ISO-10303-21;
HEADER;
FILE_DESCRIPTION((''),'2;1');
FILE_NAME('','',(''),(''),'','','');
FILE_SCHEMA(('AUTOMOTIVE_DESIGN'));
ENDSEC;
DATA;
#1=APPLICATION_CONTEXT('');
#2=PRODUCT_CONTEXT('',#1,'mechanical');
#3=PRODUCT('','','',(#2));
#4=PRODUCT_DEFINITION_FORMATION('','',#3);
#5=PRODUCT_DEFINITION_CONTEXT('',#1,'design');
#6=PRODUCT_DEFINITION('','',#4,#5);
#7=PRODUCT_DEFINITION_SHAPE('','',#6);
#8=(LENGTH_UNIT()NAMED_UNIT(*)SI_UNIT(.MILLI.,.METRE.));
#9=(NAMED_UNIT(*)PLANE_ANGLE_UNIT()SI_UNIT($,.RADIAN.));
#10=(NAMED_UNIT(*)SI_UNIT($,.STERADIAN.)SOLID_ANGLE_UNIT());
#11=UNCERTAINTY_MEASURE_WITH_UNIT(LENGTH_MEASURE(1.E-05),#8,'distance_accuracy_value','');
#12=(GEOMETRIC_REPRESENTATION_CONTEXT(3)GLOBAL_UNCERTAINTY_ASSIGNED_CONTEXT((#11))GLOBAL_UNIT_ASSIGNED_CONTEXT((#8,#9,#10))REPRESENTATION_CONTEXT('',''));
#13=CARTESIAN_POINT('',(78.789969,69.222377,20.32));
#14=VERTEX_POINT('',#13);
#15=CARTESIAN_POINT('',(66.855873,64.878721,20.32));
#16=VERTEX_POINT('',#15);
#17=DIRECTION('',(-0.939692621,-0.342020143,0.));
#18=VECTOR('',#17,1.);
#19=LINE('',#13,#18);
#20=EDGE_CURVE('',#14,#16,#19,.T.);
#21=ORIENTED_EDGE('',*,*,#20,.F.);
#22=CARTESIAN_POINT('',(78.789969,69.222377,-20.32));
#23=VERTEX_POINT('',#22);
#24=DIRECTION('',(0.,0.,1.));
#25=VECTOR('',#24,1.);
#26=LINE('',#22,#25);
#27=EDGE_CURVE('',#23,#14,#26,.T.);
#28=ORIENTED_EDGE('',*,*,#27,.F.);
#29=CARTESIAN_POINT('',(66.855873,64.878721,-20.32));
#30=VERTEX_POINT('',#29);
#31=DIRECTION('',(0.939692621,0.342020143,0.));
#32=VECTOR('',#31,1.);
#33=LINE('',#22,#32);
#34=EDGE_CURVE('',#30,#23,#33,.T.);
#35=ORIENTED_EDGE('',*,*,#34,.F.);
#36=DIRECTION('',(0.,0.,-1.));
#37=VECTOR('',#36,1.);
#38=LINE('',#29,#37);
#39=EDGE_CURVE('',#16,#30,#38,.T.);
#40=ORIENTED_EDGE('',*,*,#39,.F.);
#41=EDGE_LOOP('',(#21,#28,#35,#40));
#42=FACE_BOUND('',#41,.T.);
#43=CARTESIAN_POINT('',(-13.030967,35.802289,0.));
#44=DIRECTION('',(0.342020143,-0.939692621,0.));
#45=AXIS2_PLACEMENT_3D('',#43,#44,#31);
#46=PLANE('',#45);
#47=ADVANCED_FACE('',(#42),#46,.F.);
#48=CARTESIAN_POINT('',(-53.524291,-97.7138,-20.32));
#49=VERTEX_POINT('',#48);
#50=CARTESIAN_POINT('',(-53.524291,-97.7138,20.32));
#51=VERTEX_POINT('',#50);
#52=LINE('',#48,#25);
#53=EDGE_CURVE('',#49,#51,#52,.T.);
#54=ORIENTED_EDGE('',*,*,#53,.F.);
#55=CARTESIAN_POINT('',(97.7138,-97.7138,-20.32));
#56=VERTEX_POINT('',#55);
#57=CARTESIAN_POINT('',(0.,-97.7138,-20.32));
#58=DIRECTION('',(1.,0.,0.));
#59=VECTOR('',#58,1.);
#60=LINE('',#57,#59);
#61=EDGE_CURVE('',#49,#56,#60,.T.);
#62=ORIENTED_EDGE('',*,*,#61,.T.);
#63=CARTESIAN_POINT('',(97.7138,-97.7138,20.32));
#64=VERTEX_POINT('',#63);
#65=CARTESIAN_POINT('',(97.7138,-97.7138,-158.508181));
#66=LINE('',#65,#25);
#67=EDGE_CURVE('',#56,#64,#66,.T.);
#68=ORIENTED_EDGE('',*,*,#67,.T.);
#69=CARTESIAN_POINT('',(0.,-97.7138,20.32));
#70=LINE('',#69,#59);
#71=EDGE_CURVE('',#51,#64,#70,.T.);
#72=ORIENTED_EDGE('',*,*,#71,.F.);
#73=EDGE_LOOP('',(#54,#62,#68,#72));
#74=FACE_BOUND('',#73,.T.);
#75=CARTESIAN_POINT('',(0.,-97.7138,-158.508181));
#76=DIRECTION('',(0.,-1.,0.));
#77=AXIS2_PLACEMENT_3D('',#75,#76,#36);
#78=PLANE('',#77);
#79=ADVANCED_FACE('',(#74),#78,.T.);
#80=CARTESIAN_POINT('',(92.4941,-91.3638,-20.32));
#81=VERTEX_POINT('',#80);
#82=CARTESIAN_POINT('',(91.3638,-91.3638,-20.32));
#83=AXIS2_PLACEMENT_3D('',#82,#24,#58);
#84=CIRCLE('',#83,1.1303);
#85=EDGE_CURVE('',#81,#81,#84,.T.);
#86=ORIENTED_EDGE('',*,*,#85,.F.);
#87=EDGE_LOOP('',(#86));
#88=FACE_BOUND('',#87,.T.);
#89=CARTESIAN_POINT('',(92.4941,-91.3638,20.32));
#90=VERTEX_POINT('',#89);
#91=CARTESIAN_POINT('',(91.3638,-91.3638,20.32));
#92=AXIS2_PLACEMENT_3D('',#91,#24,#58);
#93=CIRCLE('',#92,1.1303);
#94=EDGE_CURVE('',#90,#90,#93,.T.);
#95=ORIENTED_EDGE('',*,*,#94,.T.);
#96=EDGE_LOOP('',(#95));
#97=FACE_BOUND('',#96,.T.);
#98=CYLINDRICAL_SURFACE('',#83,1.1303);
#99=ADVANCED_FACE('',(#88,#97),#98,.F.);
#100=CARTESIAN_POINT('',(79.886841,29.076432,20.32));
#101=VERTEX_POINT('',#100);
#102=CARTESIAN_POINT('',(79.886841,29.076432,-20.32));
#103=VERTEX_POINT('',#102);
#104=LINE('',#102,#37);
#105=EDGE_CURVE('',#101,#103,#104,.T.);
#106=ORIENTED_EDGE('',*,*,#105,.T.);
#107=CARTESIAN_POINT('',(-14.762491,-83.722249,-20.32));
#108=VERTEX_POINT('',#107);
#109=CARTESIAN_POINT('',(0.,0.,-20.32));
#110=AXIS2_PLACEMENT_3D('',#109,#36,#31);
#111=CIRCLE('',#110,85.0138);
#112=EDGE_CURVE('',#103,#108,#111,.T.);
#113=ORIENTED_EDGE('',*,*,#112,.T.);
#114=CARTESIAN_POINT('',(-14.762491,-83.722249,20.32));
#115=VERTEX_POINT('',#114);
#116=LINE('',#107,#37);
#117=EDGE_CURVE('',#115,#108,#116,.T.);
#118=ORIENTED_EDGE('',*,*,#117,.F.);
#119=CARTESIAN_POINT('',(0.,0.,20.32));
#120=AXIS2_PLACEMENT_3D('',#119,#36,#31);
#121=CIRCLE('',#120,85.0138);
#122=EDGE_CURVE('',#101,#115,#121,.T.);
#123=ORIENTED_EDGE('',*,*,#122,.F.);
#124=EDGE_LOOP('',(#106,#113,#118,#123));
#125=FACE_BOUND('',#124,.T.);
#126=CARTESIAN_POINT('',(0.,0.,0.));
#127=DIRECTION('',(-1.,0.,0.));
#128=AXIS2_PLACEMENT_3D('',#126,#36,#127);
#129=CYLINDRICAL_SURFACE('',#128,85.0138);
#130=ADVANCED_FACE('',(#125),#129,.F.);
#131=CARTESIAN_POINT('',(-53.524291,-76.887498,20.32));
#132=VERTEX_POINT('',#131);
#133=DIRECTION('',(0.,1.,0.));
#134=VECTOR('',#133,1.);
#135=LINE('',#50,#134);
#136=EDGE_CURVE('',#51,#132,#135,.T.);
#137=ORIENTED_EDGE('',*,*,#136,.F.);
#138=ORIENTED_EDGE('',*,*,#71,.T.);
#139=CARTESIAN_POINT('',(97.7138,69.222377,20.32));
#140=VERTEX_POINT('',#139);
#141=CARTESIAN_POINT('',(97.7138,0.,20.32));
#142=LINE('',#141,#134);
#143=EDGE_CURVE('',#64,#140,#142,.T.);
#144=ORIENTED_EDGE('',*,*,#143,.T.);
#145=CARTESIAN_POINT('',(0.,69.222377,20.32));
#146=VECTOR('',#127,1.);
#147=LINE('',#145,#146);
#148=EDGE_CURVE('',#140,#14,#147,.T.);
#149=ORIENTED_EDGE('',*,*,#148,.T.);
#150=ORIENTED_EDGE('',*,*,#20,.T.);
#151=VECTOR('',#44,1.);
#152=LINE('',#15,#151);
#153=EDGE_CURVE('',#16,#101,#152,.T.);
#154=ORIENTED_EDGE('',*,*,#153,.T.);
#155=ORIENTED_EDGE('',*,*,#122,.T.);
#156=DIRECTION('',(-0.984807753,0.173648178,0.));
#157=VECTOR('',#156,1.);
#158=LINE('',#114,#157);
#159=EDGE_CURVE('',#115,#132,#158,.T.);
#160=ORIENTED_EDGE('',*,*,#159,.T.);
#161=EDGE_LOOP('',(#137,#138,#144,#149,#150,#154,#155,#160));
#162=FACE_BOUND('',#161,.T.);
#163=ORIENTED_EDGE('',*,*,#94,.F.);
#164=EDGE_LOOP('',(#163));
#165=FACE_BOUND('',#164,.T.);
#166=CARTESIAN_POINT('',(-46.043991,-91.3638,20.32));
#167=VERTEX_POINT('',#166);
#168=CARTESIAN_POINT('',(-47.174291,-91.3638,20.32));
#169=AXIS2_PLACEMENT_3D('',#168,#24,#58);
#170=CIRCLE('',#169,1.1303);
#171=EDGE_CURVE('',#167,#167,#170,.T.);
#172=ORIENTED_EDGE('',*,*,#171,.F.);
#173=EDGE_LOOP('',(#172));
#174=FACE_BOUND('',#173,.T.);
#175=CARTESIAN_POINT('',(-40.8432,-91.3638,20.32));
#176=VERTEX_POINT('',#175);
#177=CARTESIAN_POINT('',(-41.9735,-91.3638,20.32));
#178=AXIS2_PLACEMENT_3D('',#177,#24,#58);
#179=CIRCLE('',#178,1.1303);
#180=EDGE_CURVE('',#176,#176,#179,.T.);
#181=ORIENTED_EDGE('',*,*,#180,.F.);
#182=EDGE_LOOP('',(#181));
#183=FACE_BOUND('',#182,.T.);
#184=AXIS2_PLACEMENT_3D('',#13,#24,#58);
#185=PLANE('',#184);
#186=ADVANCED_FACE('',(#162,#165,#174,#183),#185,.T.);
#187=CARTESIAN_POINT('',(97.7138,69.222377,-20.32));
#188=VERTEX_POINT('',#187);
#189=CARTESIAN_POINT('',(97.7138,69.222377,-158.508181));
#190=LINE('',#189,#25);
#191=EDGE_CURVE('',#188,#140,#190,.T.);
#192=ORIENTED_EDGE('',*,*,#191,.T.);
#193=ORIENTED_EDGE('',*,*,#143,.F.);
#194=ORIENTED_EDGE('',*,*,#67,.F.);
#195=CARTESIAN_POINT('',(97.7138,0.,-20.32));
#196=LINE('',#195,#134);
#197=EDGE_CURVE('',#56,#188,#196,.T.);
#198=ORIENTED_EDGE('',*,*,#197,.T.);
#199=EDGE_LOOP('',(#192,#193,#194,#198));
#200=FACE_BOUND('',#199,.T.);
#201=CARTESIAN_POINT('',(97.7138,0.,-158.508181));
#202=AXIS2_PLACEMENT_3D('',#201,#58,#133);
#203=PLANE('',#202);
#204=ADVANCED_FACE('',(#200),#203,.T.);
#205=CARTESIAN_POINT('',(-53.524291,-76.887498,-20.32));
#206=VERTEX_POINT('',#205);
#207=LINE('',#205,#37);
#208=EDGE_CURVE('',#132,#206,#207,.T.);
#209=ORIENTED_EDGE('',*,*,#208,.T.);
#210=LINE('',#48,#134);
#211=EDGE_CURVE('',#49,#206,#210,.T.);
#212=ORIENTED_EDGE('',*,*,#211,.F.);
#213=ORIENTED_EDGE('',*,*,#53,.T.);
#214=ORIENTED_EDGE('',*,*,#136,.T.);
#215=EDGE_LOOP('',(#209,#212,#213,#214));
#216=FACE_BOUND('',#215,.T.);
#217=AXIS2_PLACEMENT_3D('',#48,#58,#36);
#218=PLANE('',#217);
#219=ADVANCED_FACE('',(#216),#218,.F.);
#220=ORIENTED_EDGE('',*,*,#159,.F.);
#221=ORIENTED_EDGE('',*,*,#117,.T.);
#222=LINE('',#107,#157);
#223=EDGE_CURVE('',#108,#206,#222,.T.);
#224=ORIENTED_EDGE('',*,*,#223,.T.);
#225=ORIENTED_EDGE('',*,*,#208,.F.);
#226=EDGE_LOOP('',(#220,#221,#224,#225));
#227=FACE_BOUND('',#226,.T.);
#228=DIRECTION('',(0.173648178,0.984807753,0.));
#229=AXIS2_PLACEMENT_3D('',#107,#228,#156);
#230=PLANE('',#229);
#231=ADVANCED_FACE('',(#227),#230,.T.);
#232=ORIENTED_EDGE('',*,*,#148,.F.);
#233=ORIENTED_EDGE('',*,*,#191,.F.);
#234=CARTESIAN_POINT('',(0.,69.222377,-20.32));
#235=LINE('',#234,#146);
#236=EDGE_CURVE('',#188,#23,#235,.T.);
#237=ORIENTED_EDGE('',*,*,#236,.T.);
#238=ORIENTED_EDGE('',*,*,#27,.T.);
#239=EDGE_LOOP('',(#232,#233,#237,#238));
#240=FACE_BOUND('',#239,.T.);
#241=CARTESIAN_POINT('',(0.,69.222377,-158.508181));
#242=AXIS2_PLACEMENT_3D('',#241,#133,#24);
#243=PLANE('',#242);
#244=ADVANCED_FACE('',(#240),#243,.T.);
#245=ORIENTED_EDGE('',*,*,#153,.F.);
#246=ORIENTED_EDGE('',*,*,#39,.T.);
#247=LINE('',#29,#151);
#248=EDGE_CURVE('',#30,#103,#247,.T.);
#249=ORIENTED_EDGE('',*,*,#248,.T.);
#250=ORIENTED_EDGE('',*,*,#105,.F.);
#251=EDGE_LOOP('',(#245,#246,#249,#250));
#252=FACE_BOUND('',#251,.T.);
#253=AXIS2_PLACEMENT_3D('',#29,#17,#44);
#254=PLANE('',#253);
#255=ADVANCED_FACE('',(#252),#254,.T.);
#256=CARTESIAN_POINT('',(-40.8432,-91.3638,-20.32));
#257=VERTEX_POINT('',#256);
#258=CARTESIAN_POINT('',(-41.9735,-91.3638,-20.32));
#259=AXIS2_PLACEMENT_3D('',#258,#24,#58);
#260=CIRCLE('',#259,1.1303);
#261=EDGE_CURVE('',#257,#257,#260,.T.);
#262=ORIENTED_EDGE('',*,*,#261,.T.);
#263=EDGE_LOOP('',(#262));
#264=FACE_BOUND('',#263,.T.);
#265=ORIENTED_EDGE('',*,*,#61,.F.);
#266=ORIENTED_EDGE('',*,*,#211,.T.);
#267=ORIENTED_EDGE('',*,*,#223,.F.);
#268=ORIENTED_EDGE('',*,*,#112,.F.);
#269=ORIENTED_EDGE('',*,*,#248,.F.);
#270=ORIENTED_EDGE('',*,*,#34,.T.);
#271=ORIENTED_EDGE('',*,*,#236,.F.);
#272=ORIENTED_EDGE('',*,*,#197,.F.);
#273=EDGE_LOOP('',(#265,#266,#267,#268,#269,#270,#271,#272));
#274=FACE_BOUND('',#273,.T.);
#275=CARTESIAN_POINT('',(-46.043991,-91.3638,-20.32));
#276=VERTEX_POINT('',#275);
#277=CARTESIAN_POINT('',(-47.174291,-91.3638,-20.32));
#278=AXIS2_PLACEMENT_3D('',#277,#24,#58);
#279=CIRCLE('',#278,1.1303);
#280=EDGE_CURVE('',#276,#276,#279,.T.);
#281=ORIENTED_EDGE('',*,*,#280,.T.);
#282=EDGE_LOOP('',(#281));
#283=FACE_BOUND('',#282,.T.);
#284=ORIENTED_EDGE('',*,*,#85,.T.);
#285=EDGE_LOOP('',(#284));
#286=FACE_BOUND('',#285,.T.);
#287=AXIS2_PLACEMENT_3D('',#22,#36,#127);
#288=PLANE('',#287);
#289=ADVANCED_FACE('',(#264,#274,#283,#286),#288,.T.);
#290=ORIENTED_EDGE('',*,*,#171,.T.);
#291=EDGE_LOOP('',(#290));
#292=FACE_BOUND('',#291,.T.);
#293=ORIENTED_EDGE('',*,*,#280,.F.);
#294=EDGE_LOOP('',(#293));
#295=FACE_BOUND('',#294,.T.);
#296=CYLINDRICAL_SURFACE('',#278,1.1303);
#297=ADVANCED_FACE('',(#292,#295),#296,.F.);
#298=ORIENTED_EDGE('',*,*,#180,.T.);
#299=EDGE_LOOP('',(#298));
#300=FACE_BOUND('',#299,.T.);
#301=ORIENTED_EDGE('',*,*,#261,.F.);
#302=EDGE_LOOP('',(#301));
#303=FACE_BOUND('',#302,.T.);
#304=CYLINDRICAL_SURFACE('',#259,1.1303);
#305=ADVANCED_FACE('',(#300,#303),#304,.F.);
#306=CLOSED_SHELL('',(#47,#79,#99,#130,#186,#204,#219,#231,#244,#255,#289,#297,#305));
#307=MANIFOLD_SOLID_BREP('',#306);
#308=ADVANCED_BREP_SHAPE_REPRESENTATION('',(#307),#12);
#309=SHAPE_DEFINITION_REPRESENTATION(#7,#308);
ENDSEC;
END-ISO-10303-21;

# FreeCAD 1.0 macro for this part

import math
import FreeCAD as App
import Part
import Sketcher
from FreeCAD import Vector
Q = App.Units.Quantity


def add_polygon(sketch, points):
    """Adds a closed chain of lines whose ends are joined by coincident constraints."""
    first, n = sketch.GeometryCount, len(points)
    for a, b in zip(points, points[1:] + points[:1]):
        sketch.addGeometry(Part.LineSegment(App.Vector(*a, 0), App.Vector(*b, 0)), False)
    for i in range(n):
        sketch.addConstraint(Sketcher.Constraint("Coincident", first + i, 2, first + (i + 1) % n, 1))

doc = App.newDocument("Part")
body = doc.addObject("PartDesign::Body", "Body")

sketch1 = body.newObject("Sketcher::SketchObject", "Sketch")
sketch1.Placement = App.Placement(Vector(-117.024291, -78.586653, -20.32), App.Rotation(Vector(0.051794909, 0.293743526, 0.954479978), Vector(-0.165743709, -0.939979282, 0.298274993), Vector(0.984807753, -0.173648178, 0), "ZXY"))
add_polygon(sketch1, [(0, 0), (4, -12), (43, 0), (39, 12)])
sketch1.addConstraint(Sketcher.Constraint("Coincident", 3, 2, -1, 1))
sketch1.addConstraint(Sketcher.Constraint("PointOnObject", 1, 2, -1))
sketch1.addConstraint(Sketcher.Constraint("Perpendicular", 0, 1))
sketch1.addConstraint(Sketcher.Constraint("Perpendicular", 1, 2))
sketch1.addConstraint(Sketcher.Constraint("Perpendicular", 2, 3))
sketch1.addConstraint(Sketcher.Constraint("Distance", 0, Q("0.5 in")))
sketch1.addConstraint(Sketcher.Constraint("Distance", 1, Q("1.6 in")))

sketch2 = body.newObject("Sketcher::SketchObject", "Sketch001")
sketch2.AttachmentSupport = (doc.getObject("XY_Plane"), [""])
sketch2.MapMode = "FlatFace"
sketch2.addGeometry(Part.LineSegment(Vector(-111, -47, 0), Vector(-11, -64, 0)), False)
sketch2.addGeometry(Part.ArcOfCircle(Part.Circle(Vector(0, 0, 0), Vector(0, 0, 1), 65), math.radians(-100), math.radians(20)), False)
sketch2.addGeometry(Part.LineSegment(Vector(61, 22, 0), Vector(48, 58, 0)), False)
sketch2.addConstraint(Sketcher.Constraint("Tangent", 0, 2, 1, 1))
sketch2.addConstraint(Sketcher.Constraint("Tangent", 1, 2, 2, 1))
sketch2.addConstraint(Sketcher.Constraint("Coincident", 1, 3, -1, 1))
sketch2.addConstraint(Sketcher.Constraint("Distance", 0, Q("4 in")))
sketch2.addConstraint(Sketcher.Constraint("Angle", 0, Q("-10 deg")))
sketch2.addConstraint(Sketcher.Constraint("Angle", 2, Q("110 deg")))
sketch2.addConstraint(Sketcher.Constraint("Radius", 1, Q("2.567 in")))
sketch2.addConstraint(Sketcher.Constraint("Distance", 2, Q("1.5 in")))
doc.recompute()

additivepipe = body.newObject("PartDesign::AdditivePipe", "AdditivePipe")
additivepipe.Profile = sketch1
additivepipe.Spine = (sketch2, ["Edge1", "Edge2", "Edge3"])

sketch3 = body.newObject("Sketcher::SketchObject", "Sketch002")
sketch3.AttachmentSupport = (doc.getObject("XY_Plane"), [""])
sketch3.MapMode = "FlatFace"
sketch3.AttachmentOffset = App.Placement(Vector(0, 0, 0.8 * 25.4), App.Rotation())
sketch3.addGeometry(Part.LineSegment(Vector(-17, -96, 0), Vector(-117, -79, 0)), False)
sketch3.addGeometry(Part.LineSegment(Vector(-117, -79, 0), Vector(-117, -98, 0)), False)
sketch3.addGeometry(Part.LineSegment(Vector(-117, -98, 0), Vector(0, -98, 0)), False)
sketch3.addGeometry(Part.ArcOfCircle(Part.Circle(Vector(0, 0, 0), Vector(0, 0, 1), 98), math.radians(-100), math.radians(-90)), False)
sketch3.addGeometry(Part.ArcOfCircle(Part.Circle(Vector(0, 0, 0), Vector(0, 0, 1), 98), math.radians(-90), math.radians(0)), False)
sketch3.addGeometry(Part.LineSegment(Vector(0, -98, 0), Vector(98, -98, 0)), False)
sketch3.addGeometry(Part.LineSegment(Vector(98, -98, 0), Vector(98, 0, 0)), False)
sketch3.addGeometry(Part.ArcOfCircle(Part.Circle(Vector(0, 0, 0), Vector(0, 0, 1), 98), math.radians(0), math.radians(20)), False)
sketch3.addGeometry(Part.LineSegment(Vector(98, 0, 0), Vector(98, 69, 0)), False)
sketch3.addGeometry(Part.LineSegment(Vector(98, 69, 0), Vector(79, 69, 0)), False)
sketch3.addGeometry(Part.LineSegment(Vector(79, 69, 0), Vector(92, 33, 0)), False)
sketch3.addConstraint(Sketcher.Constraint("Coincident", 0, 2, 1, 1))
sketch3.addConstraint(Sketcher.Constraint("Coincident", 1, 2, 2, 1))
sketch3.addConstraint(Sketcher.Constraint("Tangent", 2, 2, 3, 2))
sketch3.addConstraint(Sketcher.Constraint("Tangent", 3, 1, 0, 1))
sketch3.addConstraint(Sketcher.Constraint("Tangent", 4, 1, 5, 1))
sketch3.addConstraint(Sketcher.Constraint("Coincident", 5, 2, 6, 1))
sketch3.addConstraint(Sketcher.Constraint("Tangent", 6, 2, 4, 2))
sketch3.addConstraint(Sketcher.Constraint("Tangent", 7, 1, 8, 1))
sketch3.addConstraint(Sketcher.Constraint("Coincident", 8, 2, 9, 1))
sketch3.addConstraint(Sketcher.Constraint("Coincident", 9, 2, 10, 1))
sketch3.addConstraint(Sketcher.Constraint("Tangent", 10, 2, 7, 2))
sketch3.addConstraint(Sketcher.Constraint("Vertical", 1))
sketch3.addConstraint(Sketcher.Constraint("Horizontal", 2))
sketch3.addConstraint(Sketcher.Constraint("Horizontal", 5))
sketch3.addConstraint(Sketcher.Constraint("Vertical", 6))
sketch3.addConstraint(Sketcher.Constraint("Vertical", 8))
sketch3.addConstraint(Sketcher.Constraint("Horizontal", 9))
sketch3.addConstraint(Sketcher.Constraint("Coincident", 3, 3, -1, 1))
sketch3.addConstraint(Sketcher.Constraint("Coincident", 4, 3, -1, 1))
sketch3.addConstraint(Sketcher.Constraint("Coincident", 7, 3, -1, 1))
sketch3.addConstraint(Sketcher.Constraint("Equal", 3, 4))
sketch3.addConstraint(Sketcher.Constraint("Equal", 4, 7))
sketch3.addConstraint(Sketcher.Constraint("Distance", 0, Q("4 in")))
sketch3.addConstraint(Sketcher.Constraint("Angle", 0, Q("170 deg")))
sketch3.addConstraint(Sketcher.Constraint("Angle", 10, Q("-70 deg")))
sketch3.addConstraint(Sketcher.Constraint("Radius", 3, Q("3.847 in")))
sketch3.addConstraint(Sketcher.Constraint("Distance", 10, Q("1.5 in")))
pad1 = body.newObject("PartDesign::Pad", "Pad")
pad1.Profile = sketch3
pad1.Length = Q("1.6 in")
pad1.Reversed = True

sketch4 = body.newObject("Sketcher::SketchObject", "Sketch003")
sketch4.AttachmentSupport = (doc.getObject("XY_Plane"), [""])
sketch4.MapMode = "FlatFace"
sketch4.AttachmentOffset = App.Placement(Vector(0, 0, 0.8 * 25.4), App.Rotation())
sketch4.addGeometry(Part.Circle(Vector(91.4, -91.4, 0), Vector(0, 0, 1), 1.1), False)
sketch4.addGeometry(Part.Circle(Vector(-42, -91.4, 0), Vector(0, 0, 1), 1.1), False)
sketch4.addConstraint(Sketcher.Constraint("Equal", 0, 1))
sketch4.addConstraint(Sketcher.Constraint("Horizontal", 0, 3, 1, 3))
sketch4.addConstraint(Sketcher.Constraint("Diameter", 0, Q("0.089 in")))
sketch4.addConstraint(Sketcher.Constraint("DistanceX", -1, 1, 0, 3, Q("3.597 in")))
sketch4.addConstraint(Sketcher.Constraint("DistanceY", 0, 3, -1, 1, Q("3.597 in")))
sketch4.addConstraint(Sketcher.Constraint("DistanceX", 1, 3, -1, 1, Q("1.6525 in")))
pocket1 = body.newObject("PartDesign::Pocket", "Pocket")
pocket1.Profile = sketch4
pocket1.Type = "ThroughAll"

sketch5 = body.newObject("Sketcher::SketchObject", "Sketch004")
sketch5.AttachmentSupport = (doc.getObject("XY_Plane"), [""])
sketch5.MapMode = "FlatFace"
sketch5.AttachmentOffset = App.Placement(Vector(0, 0, 0.8 * 25.4), App.Rotation())
add_polygon(sketch5, [(-127, -24), (-127, -98), (-54, -98), (-54, -24)])
sketch5.addConstraint(Sketcher.Constraint("Vertical", 0))
sketch5.addConstraint(Sketcher.Constraint("Horizontal", 1))
sketch5.addConstraint(Sketcher.Constraint("Vertical", 2))
sketch5.addConstraint(Sketcher.Constraint("Horizontal", 3))
sketch5.addConstraint(Sketcher.Constraint("Equal", 3, 0))
sketch5.addConstraint(Sketcher.Constraint("DistanceY", 0, 2, -1, 1, Q("3.847 in")))
sketch5.addConstraint(Sketcher.Constraint("DistanceX", 1, 1, 1, 2, 73.663303))
sketch5.addConstraint(Sketcher.Constraint("DistanceX", 1, 2, -1, 1, 53.524291))
pocket2 = body.newObject("PartDesign::Pocket", "Pocket001")
pocket2.Profile = sketch5
pocket2.Type = "ThroughAll"

sketch6 = body.newObject("Sketcher::SketchObject", "Sketch005")
sketch6.AttachmentSupport = (doc.getObject("XY_Plane"), [""])
sketch6.MapMode = "FlatFace"
sketch6.AttachmentOffset = App.Placement(Vector(0, 0, 0.8 * 25.4), App.Rotation())
sketch6.addGeometry(Part.Circle(Vector(-47.2, -91.4, 0), Vector(0, 0, 1), 1.1), False)
sketch6.addConstraint(Sketcher.Constraint("Diameter", 0, Q("0.089 in")))
sketch6.addConstraint(Sketcher.Constraint("DistanceY", 0, 3, -1, 1, Q("3.597 in")))
sketch6.addConstraint(Sketcher.Constraint("DistanceX", 0, 3, -1, 1, 47.174291))
pocket3 = body.newObject("PartDesign::Pocket", "Pocket002")
pocket3.Profile = sketch6
pocket3.Type = "ThroughAll"

doc.recompute()
